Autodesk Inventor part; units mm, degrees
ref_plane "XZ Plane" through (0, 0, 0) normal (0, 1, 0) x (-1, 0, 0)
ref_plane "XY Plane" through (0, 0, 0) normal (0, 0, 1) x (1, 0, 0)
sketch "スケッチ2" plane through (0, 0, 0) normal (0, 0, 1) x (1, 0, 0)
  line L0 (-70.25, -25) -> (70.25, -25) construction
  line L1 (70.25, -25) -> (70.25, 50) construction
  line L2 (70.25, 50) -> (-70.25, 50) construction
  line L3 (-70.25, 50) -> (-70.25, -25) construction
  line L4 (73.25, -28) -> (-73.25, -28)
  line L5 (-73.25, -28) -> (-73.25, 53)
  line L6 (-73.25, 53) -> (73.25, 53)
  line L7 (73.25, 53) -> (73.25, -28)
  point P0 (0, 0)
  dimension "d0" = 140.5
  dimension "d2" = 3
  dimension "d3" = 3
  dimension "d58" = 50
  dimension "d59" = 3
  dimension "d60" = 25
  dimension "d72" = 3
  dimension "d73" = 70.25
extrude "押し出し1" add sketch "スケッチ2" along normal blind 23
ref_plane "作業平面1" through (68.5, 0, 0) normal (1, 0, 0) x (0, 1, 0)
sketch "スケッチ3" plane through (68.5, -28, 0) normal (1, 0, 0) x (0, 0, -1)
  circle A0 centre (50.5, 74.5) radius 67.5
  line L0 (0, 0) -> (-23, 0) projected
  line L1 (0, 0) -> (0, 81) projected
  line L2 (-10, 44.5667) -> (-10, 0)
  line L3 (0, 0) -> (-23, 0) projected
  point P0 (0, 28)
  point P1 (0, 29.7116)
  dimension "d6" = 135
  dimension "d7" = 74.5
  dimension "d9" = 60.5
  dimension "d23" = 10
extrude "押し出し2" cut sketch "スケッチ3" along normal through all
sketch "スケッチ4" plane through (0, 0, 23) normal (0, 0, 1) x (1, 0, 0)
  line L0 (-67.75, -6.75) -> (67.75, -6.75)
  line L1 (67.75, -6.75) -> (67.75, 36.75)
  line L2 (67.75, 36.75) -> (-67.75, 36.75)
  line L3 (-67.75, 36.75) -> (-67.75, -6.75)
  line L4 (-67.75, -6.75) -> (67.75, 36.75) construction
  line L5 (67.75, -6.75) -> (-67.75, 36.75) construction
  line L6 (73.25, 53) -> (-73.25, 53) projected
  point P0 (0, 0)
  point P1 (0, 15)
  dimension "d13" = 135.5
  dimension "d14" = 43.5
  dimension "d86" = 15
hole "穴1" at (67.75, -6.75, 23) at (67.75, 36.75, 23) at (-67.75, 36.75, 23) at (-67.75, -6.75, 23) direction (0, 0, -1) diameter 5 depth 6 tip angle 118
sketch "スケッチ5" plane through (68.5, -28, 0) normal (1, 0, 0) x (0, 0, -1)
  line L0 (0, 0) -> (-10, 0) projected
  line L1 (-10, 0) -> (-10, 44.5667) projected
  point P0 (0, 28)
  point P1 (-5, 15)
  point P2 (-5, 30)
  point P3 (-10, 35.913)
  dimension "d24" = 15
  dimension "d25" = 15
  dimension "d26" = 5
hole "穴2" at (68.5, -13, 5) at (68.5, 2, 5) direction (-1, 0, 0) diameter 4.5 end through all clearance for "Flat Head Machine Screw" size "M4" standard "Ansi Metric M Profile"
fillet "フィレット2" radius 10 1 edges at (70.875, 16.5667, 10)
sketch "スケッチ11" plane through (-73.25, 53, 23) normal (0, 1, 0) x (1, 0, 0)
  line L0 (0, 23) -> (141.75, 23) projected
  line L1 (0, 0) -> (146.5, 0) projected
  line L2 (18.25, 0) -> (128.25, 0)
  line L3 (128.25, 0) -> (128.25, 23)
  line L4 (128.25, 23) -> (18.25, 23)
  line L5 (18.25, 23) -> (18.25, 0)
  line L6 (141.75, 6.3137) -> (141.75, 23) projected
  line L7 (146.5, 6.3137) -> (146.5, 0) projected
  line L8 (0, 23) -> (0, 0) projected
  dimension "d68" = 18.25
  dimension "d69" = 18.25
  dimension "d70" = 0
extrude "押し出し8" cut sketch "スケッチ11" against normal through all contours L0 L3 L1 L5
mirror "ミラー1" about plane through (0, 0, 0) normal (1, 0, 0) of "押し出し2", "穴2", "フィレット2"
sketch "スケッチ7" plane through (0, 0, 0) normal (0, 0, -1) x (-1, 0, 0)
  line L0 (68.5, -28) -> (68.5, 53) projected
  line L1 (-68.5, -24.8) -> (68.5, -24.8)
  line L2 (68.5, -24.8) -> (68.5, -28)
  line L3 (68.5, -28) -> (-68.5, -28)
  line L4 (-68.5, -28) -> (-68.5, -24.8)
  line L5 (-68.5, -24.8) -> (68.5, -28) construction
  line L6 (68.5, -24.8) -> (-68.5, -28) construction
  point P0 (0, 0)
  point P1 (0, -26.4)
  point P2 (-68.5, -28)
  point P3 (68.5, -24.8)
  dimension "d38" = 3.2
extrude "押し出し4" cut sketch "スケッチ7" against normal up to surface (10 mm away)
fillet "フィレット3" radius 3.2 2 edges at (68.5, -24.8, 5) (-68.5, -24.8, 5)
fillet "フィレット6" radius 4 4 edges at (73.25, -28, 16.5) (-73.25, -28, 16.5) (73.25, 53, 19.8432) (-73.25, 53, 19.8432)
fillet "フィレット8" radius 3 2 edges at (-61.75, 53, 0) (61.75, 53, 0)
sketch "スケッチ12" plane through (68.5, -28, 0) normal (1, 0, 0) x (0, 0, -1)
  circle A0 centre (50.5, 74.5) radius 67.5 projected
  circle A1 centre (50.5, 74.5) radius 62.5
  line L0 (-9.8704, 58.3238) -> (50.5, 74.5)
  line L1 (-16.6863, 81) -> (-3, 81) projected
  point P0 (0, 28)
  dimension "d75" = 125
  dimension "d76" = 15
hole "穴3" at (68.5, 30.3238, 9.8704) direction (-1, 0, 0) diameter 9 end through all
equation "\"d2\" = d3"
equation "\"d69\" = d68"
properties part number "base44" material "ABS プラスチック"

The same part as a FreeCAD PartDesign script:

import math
import FreeCAD as App
import Part
import Sketcher
from FreeCAD import Vector
Q = App.Units.Quantity


def edges_at(feature, points):
    """Names of the edges that pass closest to the given points."""
    edges = feature.Shape.Edges
    near = lambda p: min(range(len(edges)), key=lambda i: edges[i].distToShape(Part.Vertex(*p))[0])
    return sorted({f"Edge{near(p) + 1}" for p in points})


def add_polygon(sketch, points):
    """Adds a closed chain of lines whose ends are joined by coincident constraints."""
    first, n = sketch.GeometryCount, len(points)
    for a, b in zip(points, points[1:] + points[:1]):
        sketch.addGeometry(Part.LineSegment(App.Vector(*a, 0), App.Vector(*b, 0)), False)
    for i in range(n):
        sketch.addConstraint(Sketcher.Constraint("Coincident", first + i, 2, first + (i + 1) % n, 1))

doc = App.newDocument("Part")
params = doc.addObject("Spreadsheet::Sheet", "Params")
for row, (alias, value) in enumerate([
    ("sketch1_height", "81 mm"),
    ("sketch1_width", "146.5 mm"),
    ("pad1_length", "23 mm"),
    ("sketch2_radius", "67.5 mm"),
    ("sketch2_height", "10 mm"),
    ("sketch2_height2", "60.5 mm"),
    ("sketch3_diameter", "5 mm"),
    ("hole_diameter", "5 mm"),
    ("hole_depth", "6 mm"),
    ("sketch4_diameter", "4.5 mm"),
    ("hole2_diameter", "4.5 mm"),
    ("fillet_radius", "10 mm"),
    ("sketch5_width", "110 mm"),
    ("sketch5_height", "23 mm"),
    ("sketch6_height", "3.2 mm"),
    ("sketch6_width", "137 mm"),
    ("pocket3_length", "10 mm"),
    ("fillet2_radius", "3.2 mm"),
    ("fillet3_radius", "4 mm"),
    ("fillet4_radius", "3 mm"),
    ("sketch7_diameter", "9 mm"),
    ("hole3_diameter", "9 mm"),
], start=1):
    params.set(f"A{row}", alias)
    params.set(f"B{row}", "=" + value)
    params.setAlias(f"B{row}", alias)

body = doc.addObject("PartDesign::Body", "Body")
body.AllowCompound = True

sketch1 = body.newObject("Sketcher::SketchObject", "Sketch")
sketch1.AttachmentSupport = (doc.getObject("XY_Plane"), [""])
sketch1.MapMode = "FlatFace"
add_polygon(sketch1, [(-73.25, -28), (73.25, -28), (73.25, 53), (-73.25, 53)])
sketch1.addConstraint([
    Sketcher.Constraint("Horizontal", 0),
    Sketcher.Constraint("Vertical", 1),
    Sketcher.Constraint("Horizontal", 2),
    Sketcher.Constraint("Vertical", 3),
    Sketcher.Constraint("DistanceY", 1, 1, 1, 2, Q("81 mm")),
    Sketcher.Constraint("DistanceX", 0, 1, 0, 2, Q("146.5 mm")),
    Sketcher.Constraint("DistanceY", 0, 2, -1, 1, Q("28 mm")),
    Sketcher.Constraint("DistanceX", -1, 1, 0, 2, Q("73.25 mm")),
])
sketch1.setExpression("Constraints[8]", "Params.sketch1_height")
sketch1.setExpression("Constraints[9]", "Params.sketch1_width")
pad1 = body.newObject("PartDesign::Pad", "Pad")
pad1.Profile = sketch1
pad1.setExpression("Length", "Params.pad1_length")

sketch2 = body.newObject("Sketcher::SketchObject", "Sketch001")
sketch2.AttachmentSupport = (doc.getObject("YZ_Plane"), [""])
sketch2.MapMode = "FlatFace"
sketch2.AttachmentOffset = App.Placement(Vector(0, 0, 68.5), App.Rotation())
sketch2.addGeometry([
    Part.ArcOfCircle(Part.Circle(Vector(46.5, -50.5, 0), Vector(0, 0, 1), 67.5), math.radians(131.569782), math.radians(476.324608)),
    Part.LineSegment(Vector(16.5667, 10, 0), Vector(-28, 10, 0)),
    Part.LineSegment(Vector(-28, 10, 0), Vector(-28, 0, 0)),
    Part.LineSegment(Vector(-28, 0, 0), Vector(1.711609, 0, 0)),
], False)
sketch2.addConstraint([
    Sketcher.Constraint("Coincident", 0, 2, 1, 1),
    Sketcher.Constraint("Coincident", 1, 2, 2, 1),
    Sketcher.Constraint("Coincident", 2, 2, 3, 1),
    Sketcher.Constraint("Coincident", 3, 2, 0, 1),
    Sketcher.Constraint("Horizontal", 1),
    Sketcher.Constraint("Vertical", 2),
    Sketcher.Constraint("Horizontal", 3),
    Sketcher.Constraint("PointOnObject", 2, 2, -1),
    Sketcher.Constraint("Radius", 0, Q("67.5 mm")),
    Sketcher.Constraint("DistanceY", 2, 2, 2, 1, Q("10 mm")),
    Sketcher.Constraint("DistanceY", 0, 3, 0, 2, Q("60.5 mm")),
    Sketcher.Constraint("DistanceX", 1, 2, 0, 3, Q("74.5 mm")),
    Sketcher.Constraint("DistanceX", 1, 2, -1, 1, Q("28 mm")),
])
sketch2.setExpression("Constraints[8]", "Params.sketch2_radius")
sketch2.setExpression("Constraints[9]", "Params.sketch2_height")
sketch2.setExpression("Constraints[10]", "Params.sketch2_height2")
pocket1 = body.newObject("PartDesign::Pocket", "Pocket")
pocket1.Profile = sketch2
pocket1.Type = "ThroughAll"
pocket1.Reversed = True

sketch3 = body.newObject("Sketcher::SketchObject", "Sketch002")
sketch3.AttachmentSupport = (doc.getObject("XY_Plane"), [""])
sketch3.MapMode = "FlatFace"
sketch3.AttachmentOffset = App.Placement(Vector(0, 0, 23), App.Rotation())
sketch3.addGeometry([
    Part.Circle(Vector(67.75, -6.75, 0), Vector(0, 0, 1), 2.5),
    Part.Circle(Vector(67.75, 36.75, 0), Vector(0, 0, 1), 2.5),
    Part.Circle(Vector(-67.75, 36.75, 0), Vector(0, 0, 1), 2.5),
    Part.Circle(Vector(-67.75, -6.75, 0), Vector(0, 0, 1), 2.5),
], False)
sketch3.addConstraint([
    Sketcher.Constraint("Equal", 0, 1),
    Sketcher.Constraint("Equal", 1, 2),
    Sketcher.Constraint("Equal", 2, 3),
    Sketcher.Constraint("Symmetric", 1, 3, 2, 3, -2),
    Sketcher.Constraint("Symmetric", 0, 3, 3, 3, -2),
    Sketcher.Constraint("Vertical", 0, 3, 1, 3),
    Sketcher.Constraint("Diameter", 0, Q("5 mm")),
    Sketcher.Constraint("DistanceY", 0, 3, 1, 3, Q("43.5 mm")),
    Sketcher.Constraint("DistanceX", 2, 3, 1, 3, Q("135.5 mm")),
    Sketcher.Constraint("DistanceY", 0, 3, -1, 1, Q("6.75 mm")),
])
sketch3.setExpression("Constraints[6]", "Params.sketch3_diameter")
doc.recompute()
hole = body.newObject("PartDesign::Hole", "Hole")
hole.Profile = sketch3
hole.ThreadType = "None"
hole.setExpression("Diameter", "Params.hole_diameter")
hole.DepthType = "Dimension"
hole.setExpression("Depth", "Params.hole_depth")
hole.DrillPoint = "Angled"
hole.DrillPointAngle = 118

sketch4 = body.newObject("Sketcher::SketchObject", "Sketch003")
sketch4.AttachmentSupport = (doc.getObject("YZ_Plane"), [""])
sketch4.MapMode = "FlatFace"
sketch4.AttachmentOffset = App.Placement(Vector(0, 0, 68.5), App.Rotation())
sketch4.addGeometry([
    Part.Circle(Vector(-13, 5, 0), Vector(0, 0, 1), 2.25),
    Part.Circle(Vector(2, 5, 0), Vector(0, 0, 1), 2.25),
], False)
sketch4.addConstraint([
    Sketcher.Constraint("Equal", 0, 1),
    Sketcher.Constraint("Horizontal", 0, 3, 1, 3),
    Sketcher.Constraint("Diameter", 0, Q("4.5 mm")),
    Sketcher.Constraint("DistanceX", 0, 3, -1, 1, Q("13 mm")),
    Sketcher.Constraint("DistanceY", -1, 1, 0, 3, Q("5 mm")),
    Sketcher.Constraint("DistanceX", -1, 1, 1, 3, Q("2 mm")),
])
sketch4.setExpression("Constraints[2]", "Params.sketch4_diameter")
doc.recompute()
hole2 = body.newObject("PartDesign::Hole", "Hole001")
hole2.Profile = sketch4
hole2.ThreadType = "None"
hole2.setExpression("Diameter", "Params.hole2_diameter")
hole2.DepthType = "ThroughAll"
doc.recompute()

fillet = body.newObject("PartDesign::Fillet", "Fillet")
fillet.Base = (hole2, edges_at(hole2, [(70.875, 16.567, 10)]))
fillet.setExpression("Radius", "Params.fillet_radius")

sketch5 = body.newObject("Sketcher::SketchObject", "Sketch004")
sketch5.AttachmentSupport = (doc.getObject("XZ_Plane"), [""])
sketch5.MapMode = "FlatFace"
sketch5.AttachmentOffset = App.Placement(Vector(0, 0, -53), App.Rotation())
add_polygon(sketch5, [(55, 0), (-55, 0), (-55, 23), (55, 23)])
sketch5.addConstraint([
    Sketcher.Constraint("Horizontal", 0),
    Sketcher.Constraint("Vertical", 1),
    Sketcher.Constraint("Horizontal", 2),
    Sketcher.Constraint("Vertical", 3),
    Sketcher.Constraint("Symmetric", 0, 2, 3, 2, -1, 1),
    Sketcher.Constraint("DistanceX", 0, 2, 0, 1, Q("110 mm")),
    Sketcher.Constraint("DistanceY", 1, 1, 1, 2, Q("23 mm")),
])
sketch5.setExpression("Constraints[9]", "Params.sketch5_width")
sketch5.setExpression("Constraints[10]", "Params.sketch5_height")
pocket2 = body.newObject("PartDesign::Pocket", "Pocket001")
pocket2.Profile = sketch5
pocket2.Type = "ThroughAll"
pocket2.Reversed = True
doc.recompute()

mirrored = body.newObject("PartDesign::Mirrored", "Mirrored")
mirrored.Originals = [pocket1, hole2, fillet]
mirrored.MirrorPlane = (doc.getObject("YZ_Plane"), [""])
body.Tip = mirrored

sketch6 = body.newObject("Sketcher::SketchObject", "Sketch005")
sketch6.AttachmentSupport = (doc.getObject("XY_Plane"), [""])
sketch6.MapMode = "FlatFace"
add_polygon(sketch6, [(68.5, -28), (-68.5, -28), (-68.5, -24.8), (68.5, -24.8)])
sketch6.addConstraint([
    Sketcher.Constraint("Horizontal", 0),
    Sketcher.Constraint("Vertical", 1),
    Sketcher.Constraint("Horizontal", 2),
    Sketcher.Constraint("Vertical", 3),
    Sketcher.Constraint("DistanceY", 1, 1, 1, 2, Q("3.2 mm")),
    Sketcher.Constraint("DistanceX", 0, 2, 0, 1, Q("137 mm")),
    Sketcher.Constraint("DistanceY", 0, 2, -1, 1, Q("28 mm")),
    Sketcher.Constraint("DistanceX", 0, 2, -1, 1, Q("68.5 mm")),
])
sketch6.setExpression("Constraints[8]", "Params.sketch6_height")
sketch6.setExpression("Constraints[9]", "Params.sketch6_width")
pocket3 = body.newObject("PartDesign::Pocket", "Pocket002")
pocket3.Profile = sketch6
pocket3.setExpression("Length", "Params.pocket3_length")
pocket3.Reversed = True
doc.recompute()

fillet2 = body.newObject("PartDesign::Fillet", "Fillet001")
fillet2.Base = (pocket3, edges_at(pocket3, [(68.5, -24.8, 5), (-68.5, -24.8, 5)]))
fillet2.setExpression("Radius", "Params.fillet2_radius")
doc.recompute()

fillet3 = body.newObject("PartDesign::Fillet", "Fillet002")
fillet3.Base = (fillet2, edges_at(fillet2, [
    (73.25, -28, 16.5),
    (-73.25, -28, 16.5),
    (73.25, 53, 19.843),
    (-73.25, 53, 19.843),
]))
fillet3.setExpression("Radius", "Params.fillet3_radius")
doc.recompute()

fillet4 = body.newObject("PartDesign::Fillet", "Fillet003")
fillet4.Base = (fillet3, edges_at(fillet3, [(-61.75, 53, 0), (61.75, 53, 0)]))
fillet4.setExpression("Radius", "Params.fillet4_radius")

sketch7 = body.newObject("Sketcher::SketchObject", "Sketch006")
sketch7.AttachmentSupport = (doc.getObject("YZ_Plane"), [""])
sketch7.MapMode = "FlatFace"
sketch7.AttachmentOffset = App.Placement(Vector(0, 0, 68.5), App.Rotation())
sketch7.addGeometry(Part.Circle(Vector(30.3238, 9.8704, 0), Vector(0, 0, 1), 4.5), False)
sketch7.addConstraint([
    Sketcher.Constraint("Diameter", 0, Q("9 mm")),
    Sketcher.Constraint("DistanceX", -1, 1, 0, 3, Q("30.3238 mm")),
    Sketcher.Constraint("DistanceY", -1, 1, 0, 3, Q("9.8704 mm")),
])
sketch7.setExpression("Constraints[0]", "Params.sketch7_diameter")
doc.recompute()
hole3 = body.newObject("PartDesign::Hole", "Hole002")
hole3.Profile = sketch7
hole3.ThreadType = "None"
hole3.setExpression("Diameter", "Params.hole3_diameter")
hole3.DepthType = "ThroughAll"

doc.recompute()
